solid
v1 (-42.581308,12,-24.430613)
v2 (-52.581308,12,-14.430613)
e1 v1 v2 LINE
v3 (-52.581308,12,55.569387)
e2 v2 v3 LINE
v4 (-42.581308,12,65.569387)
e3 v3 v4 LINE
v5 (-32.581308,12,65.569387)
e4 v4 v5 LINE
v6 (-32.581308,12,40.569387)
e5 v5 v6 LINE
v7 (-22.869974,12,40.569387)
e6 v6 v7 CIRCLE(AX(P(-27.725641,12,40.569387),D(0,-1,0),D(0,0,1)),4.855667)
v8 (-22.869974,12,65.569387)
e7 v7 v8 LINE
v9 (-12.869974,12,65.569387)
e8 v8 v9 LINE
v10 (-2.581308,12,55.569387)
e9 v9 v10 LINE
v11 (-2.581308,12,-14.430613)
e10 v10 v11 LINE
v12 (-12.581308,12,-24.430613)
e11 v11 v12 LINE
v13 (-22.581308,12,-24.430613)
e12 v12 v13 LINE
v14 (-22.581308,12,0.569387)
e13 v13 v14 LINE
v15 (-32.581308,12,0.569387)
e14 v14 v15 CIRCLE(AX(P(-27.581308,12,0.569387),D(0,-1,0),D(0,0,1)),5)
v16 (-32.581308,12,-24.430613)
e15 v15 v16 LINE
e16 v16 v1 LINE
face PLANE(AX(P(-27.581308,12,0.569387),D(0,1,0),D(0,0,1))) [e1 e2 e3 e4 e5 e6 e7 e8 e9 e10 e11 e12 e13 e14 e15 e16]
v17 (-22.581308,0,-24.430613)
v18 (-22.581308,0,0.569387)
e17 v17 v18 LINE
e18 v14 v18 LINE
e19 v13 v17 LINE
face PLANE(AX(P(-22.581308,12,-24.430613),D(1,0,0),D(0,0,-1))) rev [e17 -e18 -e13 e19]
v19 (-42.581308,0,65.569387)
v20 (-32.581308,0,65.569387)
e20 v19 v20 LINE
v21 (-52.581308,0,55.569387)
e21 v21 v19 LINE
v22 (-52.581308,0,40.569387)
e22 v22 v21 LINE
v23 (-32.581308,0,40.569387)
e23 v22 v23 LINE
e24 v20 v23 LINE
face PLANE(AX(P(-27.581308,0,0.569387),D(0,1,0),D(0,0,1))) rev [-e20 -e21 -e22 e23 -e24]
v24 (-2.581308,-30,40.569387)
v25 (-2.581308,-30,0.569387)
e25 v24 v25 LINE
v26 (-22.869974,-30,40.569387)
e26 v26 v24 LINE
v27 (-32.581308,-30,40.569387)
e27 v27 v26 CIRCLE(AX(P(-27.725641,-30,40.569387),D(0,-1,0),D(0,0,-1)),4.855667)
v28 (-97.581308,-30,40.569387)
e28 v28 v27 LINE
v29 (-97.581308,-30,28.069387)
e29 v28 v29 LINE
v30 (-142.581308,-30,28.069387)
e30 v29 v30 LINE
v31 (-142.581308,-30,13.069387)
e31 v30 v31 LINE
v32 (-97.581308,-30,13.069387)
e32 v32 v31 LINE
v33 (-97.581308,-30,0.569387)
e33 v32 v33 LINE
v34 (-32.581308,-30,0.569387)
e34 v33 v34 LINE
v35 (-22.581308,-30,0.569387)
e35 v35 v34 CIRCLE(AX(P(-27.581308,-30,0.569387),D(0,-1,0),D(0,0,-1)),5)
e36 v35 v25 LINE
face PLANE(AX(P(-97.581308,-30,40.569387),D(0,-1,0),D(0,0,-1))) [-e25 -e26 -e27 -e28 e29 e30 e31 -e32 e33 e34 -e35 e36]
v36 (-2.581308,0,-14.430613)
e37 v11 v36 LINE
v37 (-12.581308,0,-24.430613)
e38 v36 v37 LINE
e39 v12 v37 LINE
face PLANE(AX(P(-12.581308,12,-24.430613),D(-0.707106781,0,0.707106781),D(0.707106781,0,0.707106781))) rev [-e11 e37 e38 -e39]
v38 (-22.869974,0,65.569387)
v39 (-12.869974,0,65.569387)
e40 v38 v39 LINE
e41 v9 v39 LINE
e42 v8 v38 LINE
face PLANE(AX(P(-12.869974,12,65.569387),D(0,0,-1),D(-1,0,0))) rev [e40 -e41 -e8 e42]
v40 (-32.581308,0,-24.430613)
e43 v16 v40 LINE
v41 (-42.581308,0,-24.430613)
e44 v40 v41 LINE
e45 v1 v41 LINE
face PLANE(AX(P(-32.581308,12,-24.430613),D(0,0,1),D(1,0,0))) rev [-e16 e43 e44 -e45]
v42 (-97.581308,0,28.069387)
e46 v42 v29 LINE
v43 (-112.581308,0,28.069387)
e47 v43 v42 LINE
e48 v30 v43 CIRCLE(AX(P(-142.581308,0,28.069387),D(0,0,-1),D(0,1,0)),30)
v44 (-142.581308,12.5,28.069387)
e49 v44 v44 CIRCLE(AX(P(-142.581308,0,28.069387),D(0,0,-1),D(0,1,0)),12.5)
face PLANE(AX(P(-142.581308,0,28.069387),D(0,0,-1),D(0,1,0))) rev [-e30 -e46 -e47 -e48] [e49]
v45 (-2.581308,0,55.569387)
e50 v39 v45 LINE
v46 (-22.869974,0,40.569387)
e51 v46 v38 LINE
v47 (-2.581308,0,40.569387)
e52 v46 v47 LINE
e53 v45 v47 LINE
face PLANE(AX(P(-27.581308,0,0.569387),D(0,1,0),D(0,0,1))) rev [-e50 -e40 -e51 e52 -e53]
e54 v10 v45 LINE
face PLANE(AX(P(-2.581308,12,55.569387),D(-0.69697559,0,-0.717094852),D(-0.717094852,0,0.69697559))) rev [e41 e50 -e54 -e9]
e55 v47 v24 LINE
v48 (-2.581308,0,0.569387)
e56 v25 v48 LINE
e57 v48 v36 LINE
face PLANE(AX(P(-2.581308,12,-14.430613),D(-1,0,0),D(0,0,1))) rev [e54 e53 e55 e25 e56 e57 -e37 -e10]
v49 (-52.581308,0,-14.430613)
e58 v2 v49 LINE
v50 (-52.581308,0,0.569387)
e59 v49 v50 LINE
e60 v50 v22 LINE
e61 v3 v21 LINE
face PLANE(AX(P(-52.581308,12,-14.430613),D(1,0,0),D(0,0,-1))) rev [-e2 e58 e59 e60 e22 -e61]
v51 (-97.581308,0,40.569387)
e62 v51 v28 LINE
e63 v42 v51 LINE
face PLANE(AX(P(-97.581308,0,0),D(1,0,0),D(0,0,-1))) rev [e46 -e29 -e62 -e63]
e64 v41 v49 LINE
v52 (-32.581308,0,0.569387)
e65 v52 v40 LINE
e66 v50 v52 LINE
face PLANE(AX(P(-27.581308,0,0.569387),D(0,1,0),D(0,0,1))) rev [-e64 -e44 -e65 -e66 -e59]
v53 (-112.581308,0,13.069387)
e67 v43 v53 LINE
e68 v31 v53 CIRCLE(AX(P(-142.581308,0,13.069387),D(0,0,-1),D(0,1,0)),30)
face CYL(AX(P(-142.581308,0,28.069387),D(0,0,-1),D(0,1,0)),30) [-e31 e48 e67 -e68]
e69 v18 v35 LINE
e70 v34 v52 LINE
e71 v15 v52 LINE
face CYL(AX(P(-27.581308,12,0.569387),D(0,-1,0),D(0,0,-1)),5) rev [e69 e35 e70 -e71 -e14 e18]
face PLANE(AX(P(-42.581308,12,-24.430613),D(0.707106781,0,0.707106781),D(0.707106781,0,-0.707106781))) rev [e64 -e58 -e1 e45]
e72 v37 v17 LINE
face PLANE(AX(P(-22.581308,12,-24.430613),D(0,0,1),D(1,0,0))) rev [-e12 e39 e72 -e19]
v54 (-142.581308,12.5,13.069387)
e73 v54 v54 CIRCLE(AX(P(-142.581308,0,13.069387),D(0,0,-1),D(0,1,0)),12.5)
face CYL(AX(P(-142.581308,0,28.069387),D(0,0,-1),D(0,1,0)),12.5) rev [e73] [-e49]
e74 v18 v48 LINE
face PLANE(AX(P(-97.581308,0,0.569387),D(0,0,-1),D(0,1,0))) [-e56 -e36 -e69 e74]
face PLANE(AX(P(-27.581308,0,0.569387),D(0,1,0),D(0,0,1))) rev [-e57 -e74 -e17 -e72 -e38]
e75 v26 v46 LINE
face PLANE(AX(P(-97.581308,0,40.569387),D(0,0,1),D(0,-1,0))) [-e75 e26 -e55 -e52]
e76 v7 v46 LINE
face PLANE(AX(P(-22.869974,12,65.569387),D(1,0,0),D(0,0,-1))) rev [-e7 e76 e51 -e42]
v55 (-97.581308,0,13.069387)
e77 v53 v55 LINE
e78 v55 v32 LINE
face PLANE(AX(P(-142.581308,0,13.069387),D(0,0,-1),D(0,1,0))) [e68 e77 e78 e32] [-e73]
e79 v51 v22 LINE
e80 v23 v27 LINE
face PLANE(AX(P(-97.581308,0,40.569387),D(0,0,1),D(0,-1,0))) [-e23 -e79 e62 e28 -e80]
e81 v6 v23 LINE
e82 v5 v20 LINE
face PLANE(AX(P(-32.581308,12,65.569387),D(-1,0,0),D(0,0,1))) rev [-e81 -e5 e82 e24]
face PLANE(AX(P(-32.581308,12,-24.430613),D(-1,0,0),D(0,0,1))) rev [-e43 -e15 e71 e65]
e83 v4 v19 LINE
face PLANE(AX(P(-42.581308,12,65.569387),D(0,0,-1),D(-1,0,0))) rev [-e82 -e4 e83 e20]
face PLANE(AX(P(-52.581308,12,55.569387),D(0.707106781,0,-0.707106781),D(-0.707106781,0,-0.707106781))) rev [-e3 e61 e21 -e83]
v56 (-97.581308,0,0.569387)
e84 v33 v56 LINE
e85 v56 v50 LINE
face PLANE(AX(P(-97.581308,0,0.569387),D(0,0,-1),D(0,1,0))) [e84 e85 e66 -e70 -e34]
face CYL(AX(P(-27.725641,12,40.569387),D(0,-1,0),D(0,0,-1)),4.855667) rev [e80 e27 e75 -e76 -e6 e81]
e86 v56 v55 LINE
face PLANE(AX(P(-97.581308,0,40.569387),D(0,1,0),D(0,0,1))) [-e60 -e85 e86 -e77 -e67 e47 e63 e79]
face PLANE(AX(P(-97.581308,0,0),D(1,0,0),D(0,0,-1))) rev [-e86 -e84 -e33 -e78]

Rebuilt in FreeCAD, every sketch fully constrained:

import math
import FreeCAD as App
import Part
import Sketcher

V = App.Vector
Q = App.Units.Quantity

doc = App.newDocument("Part")
body = doc.addObject("PartDesign::Body", "Body")

sketch1 = body.newObject("Sketcher::SketchObject", "Sketch")
sketch1.AttachmentSupport = (doc.getObject("XZ_Plane"), [""])
sketch1.MapMode = "FlatFace"
sketch1.addGeometry([
    Part.LineSegment(V(-32.6, -24.4, 0), V(-42.6, -24.4, 0)),
    Part.LineSegment(V(-42.6, -24.4, 0), V(-52.6, -14.4, 0)),
    Part.LineSegment(V(-52.6, -14.4, 0), V(-52.6, 55.6, 0)),
    Part.LineSegment(V(-52.6, 55.6, 0), V(-42.6, 65.6, 0)),
    Part.LineSegment(V(-42.6, 65.6, 0), V(-32.6, 65.6, 0)),
    Part.LineSegment(V(-32.6, 65.6, 0), V(-32.6, 40.6, 0)),
    Part.ArcOfCircle(Part.Circle(V(-27.7, 40.6, 0), V(0, 0, 1), 4.9), math.radians(180), math.radians(360)),
    Part.LineSegment(V(-22.9, 40.6, 0), V(-22.9, 65.6, 0)),
    Part.LineSegment(V(-22.9, 65.6, 0), V(-12.9, 65.6, 0)),
    Part.LineSegment(V(-12.9, 65.6, 0), V(-2.6, 55.6, 0)),
    Part.LineSegment(V(-2.6, 55.6, 0), V(-2.6, -14.4, 0)),
    Part.LineSegment(V(-2.6, -14.4, 0), V(-12.6, -24.4, 0)),
    Part.LineSegment(V(-12.6, -24.4, 0), V(-22.6, -24.4, 0)),
    Part.LineSegment(V(-22.6, -24.4, 0), V(-22.6, 0.6, 0)),
    Part.ArcOfCircle(Part.Circle(V(-27.6, 0.6, 0), V(0, 0, 1), 5), math.radians(0), math.radians(180)),
    Part.LineSegment(V(-32.6, 0.6, 0), V(-32.6, -24.4, 0)),
], False)
sketch1.addConstraint([
    Sketcher.Constraint("Coincident", 0, 2, 1, 1),
    Sketcher.Constraint("Coincident", 1, 2, 2, 1),
    Sketcher.Constraint("Coincident", 2, 2, 3, 1),
    Sketcher.Constraint("Coincident", 3, 2, 4, 1),
    Sketcher.Constraint("Coincident", 4, 2, 5, 1),
    Sketcher.Constraint("Tangent", 5, 2, 6, 1),
    Sketcher.Constraint("Tangent", 6, 2, 7, 1),
    Sketcher.Constraint("Coincident", 7, 2, 8, 1),
    Sketcher.Constraint("Coincident", 8, 2, 9, 1),
    Sketcher.Constraint("Coincident", 9, 2, 10, 1),
    Sketcher.Constraint("Coincident", 10, 2, 11, 1),
    Sketcher.Constraint("Coincident", 11, 2, 12, 1),
    Sketcher.Constraint("Coincident", 12, 2, 13, 1),
    Sketcher.Constraint("Tangent", 13, 2, 14, 1),
    Sketcher.Constraint("Tangent", 14, 2, 15, 1),
    Sketcher.Constraint("Coincident", 15, 2, 0, 1),
    Sketcher.Constraint("Horizontal", 0),
    Sketcher.Constraint("Vertical", 2),
    Sketcher.Constraint("Horizontal", 4),
    Sketcher.Constraint("Vertical", 5),
    Sketcher.Constraint("Vertical", 7),
    Sketcher.Constraint("Horizontal", 8),
    Sketcher.Constraint("Vertical", 10),
    Sketcher.Constraint("Horizontal", 12),
    Sketcher.Constraint("Vertical", 13),
    Sketcher.Constraint("Vertical", 15),
    Sketcher.Constraint("Perpendicular", 1, 3),
    Sketcher.Constraint("Parallel", 3, 11),
    Sketcher.Constraint("Horizontal", 4, 2, 7, 2),
    Sketcher.Constraint("Horizontal", 2, 2, 9, 2),
    Sketcher.Constraint("Horizontal", 1, 2, 10, 2),
    Sketcher.Constraint("Horizontal", 0, 2, 11, 2),
    Sketcher.Constraint("Vertical", 0, 2, 3, 2),
    Sketcher.Constraint("Vertical", 5, 2, 14, 2),
    Sketcher.Constraint("Equal", 4, 8),
    Sketcher.Constraint("Equal", 8, 12),
    Sketcher.Constraint("Equal", 7, 13),
    Sketcher.Constraint("Equal", 1, 3),
    Sketcher.Constraint("Radius", 14, Q("5 mm")),
    Sketcher.Constraint("DistanceX", 0, 2, 0, 1, Q("10 mm")),
    Sketcher.Constraint("DistanceY", 2, 1, 2, 2, Q("70 mm")),
    Sketcher.Constraint("DistanceY", 5, 2, 5, 1, Q("25 mm")),
    Sketcher.Constraint("DistanceY", 14, 3, 6, 3, Q("40 mm")),
    Sketcher.Constraint("Radius", 6, Q("4.855667 mm")),
    Sketcher.Constraint("DistanceX", 6, 3, -1, 1, Q("27.725641 mm")),
    Sketcher.Constraint("DistanceY", -1, 1, 6, 3, Q("40.569387 mm")),
])
pad1 = body.newObject("PartDesign::Pad", "Pad")
pad1.Profile = sketch1
pad1.Length = 12
pad1.Reversed = True

sketch2 = body.newObject("Sketcher::SketchObject", "Sketch001")
sketch2.AttachmentSupport = (doc.getObject("YZ_Plane"), [""])
sketch2.MapMode = "FlatFace"
sketch2.AttachmentOffset = App.Placement(V(0, 0, -2.581308), App.Rotation())
sketch2.addGeometry([
    Part.LineSegment(V(0, 41, 0), V(-30, 41, 0)),
    Part.LineSegment(V(-30, 41, 0), V(-30, 1, 0)),
    Part.LineSegment(V(-30, 1, 0), V(0, 1, 0)),
    Part.LineSegment(V(0, 1, 0), V(0, 41, 0)),
], False)
sketch2.addConstraint([
    Sketcher.Constraint("Coincident", 0, 2, 1, 1),
    Sketcher.Constraint("Coincident", 1, 2, 2, 1),
    Sketcher.Constraint("Coincident", 2, 2, 3, 1),
    Sketcher.Constraint("Coincident", 3, 2, 0, 1),
    Sketcher.Constraint("Horizontal", 0),
    Sketcher.Constraint("Vertical", 1),
    Sketcher.Constraint("Horizontal", 2),
    Sketcher.Constraint("Vertical", 3),
    Sketcher.Constraint("PointOnObject", 2, 2, -2),
    Sketcher.Constraint("DistanceX", 0, 2, 0, 1, Q("30 mm")),
    Sketcher.Constraint("DistanceY", 1, 2, 1, 1, Q("40 mm")),
    Sketcher.Constraint("DistanceY", -1, 1, 0, 2, Q("40.569387 mm")),
])
pad2 = body.newObject("PartDesign::Pad", "Pad001")
pad2.Profile = sketch2
pad2.Length = 95
pad2.Reversed = True

sketch3 = body.newObject("Sketcher::SketchObject", "Sketch002")
sketch3.AttachmentSupport = (doc.getObject("XZ_Plane"), [""])
sketch3.MapMode = "FlatFace"
sketch3.AttachmentOffset = App.Placement(V(0, 0, 83), App.Rotation())
sketch3.addGeometry([
    Part.Circle(V(-27.6, 0.6, 0), V(0, 0, 1), 5),
    Part.Circle(V(-27.7, 40.6, 0), V(0, 0, 1), 4.9),
], False)
sketch3.addConstraint([
    Sketcher.Constraint("Diameter", 0, Q("10 mm")),
    Sketcher.Constraint("DistanceY", 0, 3, 1, 3, Q("40 mm")),
    Sketcher.Constraint("Diameter", 1, Q("9.711335 mm")),
    Sketcher.Constraint("DistanceX", 0, 3, -1, 1, Q("27.581308 mm")),
    Sketcher.Constraint("DistanceX", 1, 3, -1, 1, Q("27.725641 mm")),
    Sketcher.Constraint("DistanceY", -1, 1, 0, 3, Q("0.569387 mm")),
])
pocket1 = body.newObject("PartDesign::Pocket", "Pocket")
pocket1.Profile = sketch3
pocket1.Length = 95

sketch4 = body.newObject("Sketcher::SketchObject", "Sketch003")
sketch4.AttachmentSupport = (doc.getObject("XY_Plane"), [""])
sketch4.MapMode = "FlatFace"
sketch4.AttachmentOffset = App.Placement(V(0, 0, 13.069387), App.Rotation())
sketch4.addGeometry([
    Part.LineSegment(V(-113, 0, 0), V(-98, 0, 0)),
    Part.LineSegment(V(-98, 0, 0), V(-98, -30, 0)),
    Part.LineSegment(V(-98, -30, 0), V(-143, -30, 0)),
    Part.ArcOfCircle(Part.Circle(V(-143, 0, 0), V(0, 0, 1), 30), math.radians(0), math.radians(270)),
    Part.Circle(V(-143, 0, 0), V(0, 0, 1), 12),
], False)
sketch4.addConstraint([
    Sketcher.Constraint("Coincident", 0, 2, 1, 1),
    Sketcher.Constraint("Coincident", 1, 2, 2, 1),
    Sketcher.Constraint("Tangent", 2, 2, 3, 2),
    Sketcher.Constraint("Coincident", 3, 1, 0, 1),
    Sketcher.Constraint("Horizontal", 0),
    Sketcher.Constraint("Vertical", 1),
    Sketcher.Constraint("Horizontal", 2),
    Sketcher.Constraint("Coincident", 4, 3, 3, 3),
    Sketcher.Constraint("PointOnObject", 3, 3, -1),
    Sketcher.Constraint("PointOnObject", 0, 2, -1),
    Sketcher.Constraint("Diameter", 4, Q("25 mm")),
    Sketcher.Constraint("Radius", 3, Q("30 mm")),
    Sketcher.Constraint("DistanceX", 0, 1, 0, 2, Q("15 mm")),
    Sketcher.Constraint("DistanceX", 3, 3, -1, 1, Q("142.581308 mm")),
])
pad3 = body.newObject("PartDesign::Pad", "Pad002")
pad3.Profile = sketch4
pad3.Length = 15

doc.recompute()
